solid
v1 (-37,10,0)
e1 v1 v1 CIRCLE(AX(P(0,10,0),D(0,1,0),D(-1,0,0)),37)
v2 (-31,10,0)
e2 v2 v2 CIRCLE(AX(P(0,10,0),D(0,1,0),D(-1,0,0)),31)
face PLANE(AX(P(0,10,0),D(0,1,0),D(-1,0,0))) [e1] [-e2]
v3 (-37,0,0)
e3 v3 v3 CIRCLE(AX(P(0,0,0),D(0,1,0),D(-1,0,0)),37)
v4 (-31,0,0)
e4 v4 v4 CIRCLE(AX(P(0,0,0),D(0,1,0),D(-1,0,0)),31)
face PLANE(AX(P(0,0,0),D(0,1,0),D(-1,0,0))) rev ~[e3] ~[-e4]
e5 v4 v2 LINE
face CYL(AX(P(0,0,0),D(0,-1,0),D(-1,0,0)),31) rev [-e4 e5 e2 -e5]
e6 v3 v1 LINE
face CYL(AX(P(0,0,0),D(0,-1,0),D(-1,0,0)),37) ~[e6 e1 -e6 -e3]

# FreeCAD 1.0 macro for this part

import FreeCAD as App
import Part
import Sketcher
from FreeCAD import Vector
Q = App.Units.Quantity

doc = App.newDocument("Part")
body = doc.addObject("PartDesign::Body", "Body")

# Sketch on XZ plane
sketch1 = doc.addObject("Sketcher::SketchObject", "Sketch")
body.addObject(sketch1)
sketch1.AttachmentSupport = (doc.XZ_Plane, [""])
sketch1.MapMode = "FlatFace"
sketch1.addGeometry([
    Part.Circle(Vector(0, 0, 0), Vector(0, 0, 1), 37),
    Part.Circle(Vector(0, 0, 0), Vector(0, 0, 1), 31),
], False)
sketch1.addConstraint([
    Sketcher.Constraint("Coincident", 0, 3, -1, 1),
    Sketcher.Constraint("Coincident", 1, 3, -1, 1),
    Sketcher.Constraint("Diameter", 0, Q("74 mm")),
    Sketcher.Constraint("Diameter", 1, Q("62 mm")),
])
pad1 = doc.addObject("PartDesign::Pad", "Pad")
body.addObject(pad1)
pad1.Profile = sketch1
pad1.Length = 10
pad1.Reversed = True

doc.recompute()
